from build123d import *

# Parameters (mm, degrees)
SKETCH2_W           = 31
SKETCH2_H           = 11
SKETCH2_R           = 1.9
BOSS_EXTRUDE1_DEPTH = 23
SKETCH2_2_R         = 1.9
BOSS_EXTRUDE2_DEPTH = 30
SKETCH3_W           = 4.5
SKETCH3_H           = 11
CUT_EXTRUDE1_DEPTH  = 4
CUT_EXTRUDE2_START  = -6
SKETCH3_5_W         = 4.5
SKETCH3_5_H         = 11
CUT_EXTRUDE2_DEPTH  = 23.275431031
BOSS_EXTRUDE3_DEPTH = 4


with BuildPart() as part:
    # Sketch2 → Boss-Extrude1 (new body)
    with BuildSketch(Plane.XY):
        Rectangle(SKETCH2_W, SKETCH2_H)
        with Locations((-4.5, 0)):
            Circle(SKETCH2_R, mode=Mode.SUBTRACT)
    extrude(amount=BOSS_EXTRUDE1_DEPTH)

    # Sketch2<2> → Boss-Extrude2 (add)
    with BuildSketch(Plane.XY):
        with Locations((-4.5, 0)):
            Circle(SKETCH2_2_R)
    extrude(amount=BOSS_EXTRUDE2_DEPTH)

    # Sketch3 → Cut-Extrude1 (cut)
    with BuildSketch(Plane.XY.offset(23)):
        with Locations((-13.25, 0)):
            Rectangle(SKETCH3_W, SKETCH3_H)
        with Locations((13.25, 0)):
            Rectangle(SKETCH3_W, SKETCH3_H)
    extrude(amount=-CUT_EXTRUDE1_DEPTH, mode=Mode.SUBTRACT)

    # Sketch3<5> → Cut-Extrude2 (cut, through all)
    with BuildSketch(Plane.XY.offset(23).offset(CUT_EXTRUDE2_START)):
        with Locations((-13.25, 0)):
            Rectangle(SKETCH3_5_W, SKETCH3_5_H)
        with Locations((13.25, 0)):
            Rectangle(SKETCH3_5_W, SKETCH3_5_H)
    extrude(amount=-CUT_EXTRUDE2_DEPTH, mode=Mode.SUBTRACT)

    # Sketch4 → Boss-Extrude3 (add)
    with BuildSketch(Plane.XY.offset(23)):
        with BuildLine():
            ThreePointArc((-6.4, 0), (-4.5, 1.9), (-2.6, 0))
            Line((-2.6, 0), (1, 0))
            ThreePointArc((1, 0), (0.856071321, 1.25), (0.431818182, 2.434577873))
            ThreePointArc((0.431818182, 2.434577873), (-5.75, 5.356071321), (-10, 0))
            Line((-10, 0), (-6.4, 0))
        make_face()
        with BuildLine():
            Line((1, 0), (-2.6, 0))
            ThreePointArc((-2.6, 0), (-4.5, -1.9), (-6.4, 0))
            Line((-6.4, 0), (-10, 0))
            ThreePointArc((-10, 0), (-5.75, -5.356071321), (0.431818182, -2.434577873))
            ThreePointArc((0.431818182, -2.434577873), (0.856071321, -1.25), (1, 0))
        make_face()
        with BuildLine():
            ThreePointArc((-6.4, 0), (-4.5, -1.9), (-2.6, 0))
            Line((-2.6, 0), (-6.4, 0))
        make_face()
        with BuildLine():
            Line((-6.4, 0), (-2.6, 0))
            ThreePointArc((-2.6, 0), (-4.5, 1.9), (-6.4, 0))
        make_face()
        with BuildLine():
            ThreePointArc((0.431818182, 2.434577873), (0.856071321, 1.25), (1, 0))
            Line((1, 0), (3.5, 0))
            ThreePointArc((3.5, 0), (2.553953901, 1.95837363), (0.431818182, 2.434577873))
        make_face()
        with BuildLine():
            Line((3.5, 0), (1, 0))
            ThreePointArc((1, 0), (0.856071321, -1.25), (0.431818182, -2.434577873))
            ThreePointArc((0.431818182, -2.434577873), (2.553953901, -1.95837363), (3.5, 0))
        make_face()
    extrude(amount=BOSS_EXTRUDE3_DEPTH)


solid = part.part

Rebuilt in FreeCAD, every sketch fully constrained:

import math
import FreeCAD as App
import Part
import Sketcher
from FreeCAD import Vector
Q = App.Units.Quantity


def add_polygon(sketch, points):
    """Adds a closed chain of lines whose ends are joined by coincident constraints."""
    first, n = sketch.GeometryCount, len(points)
    for a, b in zip(points, points[1:] + points[:1]):
        sketch.addGeometry(Part.LineSegment(App.Vector(*a, 0), App.Vector(*b, 0)), False)
    for i in range(n):
        sketch.addConstraint(Sketcher.Constraint("Coincident", first + i, 2, first + (i + 1) % n, 1))

doc = App.newDocument("Part")
body = doc.addObject("PartDesign::Body", "Body")

# Sketch on XY plane
sketch1 = doc.addObject("Sketcher::SketchObject", "Sketch")
body.addObject(sketch1)
sketch1.AttachmentSupport = (doc.XY_Plane, [""])
sketch1.MapMode = "FlatFace"
add_polygon(sketch1, [(-15.5, 5.5), (-15.5, -5.5), (15.5, -5.5), (15.5, 5.5)])  # lines 0-3
sketch1.addGeometry(Part.Circle(Vector(-4.5, 0, 0), Vector(0, 0, 1), 1.9), False)  # 4
sketch1.addConstraint([
    Sketcher.Constraint("Vertical", 0),
    Sketcher.Constraint("Horizontal", 1),
    Sketcher.Constraint("Vertical", 2),
    Sketcher.Constraint("Horizontal", 3),
    Sketcher.Constraint("Symmetric", 0, 2, 2, 2, -1, 1),
    Sketcher.Constraint("PointOnObject", 4, 3, -1),
    Sketcher.Constraint("Diameter", 4, Q("3.8 mm")),
    Sketcher.Constraint("DistanceX", 1, 1, 1, 2, Q("31 mm")),
    Sketcher.Constraint("DistanceY", 0, 2, 0, 1, Q("11 mm")),
    Sketcher.Constraint("DistanceX", 0, 2, 4, 3, Q("11 mm")),
])
pad1 = doc.addObject("PartDesign::Pad", "Pad")
body.addObject(pad1)
pad1.Profile = sketch1
pad1.Length = 23

# Sketch on XY plane
sketch2 = doc.addObject("Sketcher::SketchObject", "Sketch001")
body.addObject(sketch2)
sketch2.AttachmentSupport = (doc.XY_Plane, [""])
sketch2.MapMode = "FlatFace"
sketch2.addGeometry(Part.Circle(Vector(-4.5, 0, 0), Vector(0, 0, 1), 1.9), False)
sketch2.addConstraint([
    Sketcher.Constraint("PointOnObject", 0, 3, -1),
    Sketcher.Constraint("Diameter", 0, Q("3.8 mm")),
    Sketcher.Constraint("DistanceX", 0, 3, -1, 1, Q("4.5 mm")),
])
pad2 = doc.addObject("PartDesign::Pad", "Pad001")
body.addObject(pad2)
pad2.Profile = sketch2
pad2.Length = 30

# Sketch on XY plane
sketch3 = doc.addObject("Sketcher::SketchObject", "Sketch002")
body.addObject(sketch3)
sketch3.AttachmentSupport = (doc.XY_Plane, [""])
sketch3.MapMode = "FlatFace"
sketch3.AttachmentOffset = App.Placement(Vector(0, 0, 23), App.Rotation())
add_polygon(sketch3, [(-15.5, 5.5), (-15.5, -5.5), (-11, -5.5), (-11, 5.5)])  # lines 0-3
add_polygon(sketch3, [(11, 5.5), (11, -5.5), (15.5, -5.5), (15.5, 5.5)])  # lines 4-7
sketch3.addConstraint([
    Sketcher.Constraint("Vertical", 0),
    Sketcher.Constraint("Horizontal", 1),
    Sketcher.Constraint("Vertical", 2),
    Sketcher.Constraint("Horizontal", 3),
    Sketcher.Constraint("Vertical", 4),
    Sketcher.Constraint("Horizontal", 5),
    Sketcher.Constraint("Vertical", 6),
    Sketcher.Constraint("Horizontal", 7),
    Sketcher.Constraint("Symmetric", 2, 2, 4, 2, -1, 1),
    Sketcher.Constraint("Symmetric", 0, 2, 6, 2, -1, 1),
    Sketcher.Constraint("Horizontal", 1, 2, 4, 2),
    Sketcher.Constraint("DistanceY", 0, 2, 0, 1, Q("11 mm")),
    Sketcher.Constraint("DistanceX", 1, 1, 1, 2, Q("4.5 mm")),
    Sketcher.Constraint("DistanceX", 1, 2, -1, 1, Q("11 mm")),
])
pocket1 = doc.addObject("PartDesign::Pocket", "Pocket")
body.addObject(pocket1)
pocket1.Profile = sketch3
pocket1.Length = 4

# Sketch on XY plane
sketch4 = doc.addObject("Sketcher::SketchObject", "Sketch003")
body.addObject(sketch4)
sketch4.AttachmentSupport = (doc.XY_Plane, [""])
sketch4.MapMode = "FlatFace"
sketch4.AttachmentOffset = App.Placement(Vector(0, 0, 17), App.Rotation())
add_polygon(sketch4, [(-15.5, 5.5), (-15.5, -5.5), (-11, -5.5), (-11, 5.5)])  # lines 0-3
add_polygon(sketch4, [(11, 5.5), (11, -5.5), (15.5, -5.5), (15.5, 5.5)])  # lines 4-7
sketch4.addConstraint([
    Sketcher.Constraint("Vertical", 0),
    Sketcher.Constraint("Horizontal", 1),
    Sketcher.Constraint("Vertical", 2),
    Sketcher.Constraint("Horizontal", 3),
    Sketcher.Constraint("Vertical", 4),
    Sketcher.Constraint("Horizontal", 5),
    Sketcher.Constraint("Vertical", 6),
    Sketcher.Constraint("Horizontal", 7),
    Sketcher.Constraint("Symmetric", 2, 2, 4, 2, -1, 1),
    Sketcher.Constraint("Symmetric", 0, 2, 6, 2, -1, 1),
    Sketcher.Constraint("Horizontal", 1, 2, 4, 2),
    Sketcher.Constraint("DistanceY", 0, 2, 0, 1, Q("11 mm")),
    Sketcher.Constraint("DistanceX", 1, 1, 1, 2, Q("4.5 mm")),
    Sketcher.Constraint("DistanceX", 1, 2, -1, 1, Q("11 mm")),
])
pocket2 = doc.addObject("PartDesign::Pocket", "Pocket001")
body.addObject(pocket2)
pocket2.Profile = sketch4
pocket2.Type = "ThroughAll"

# Sketch on XY plane
sketch5 = doc.addObject("Sketcher::SketchObject", "Sketch004")
body.addObject(sketch5)
sketch5.AttachmentSupport = (doc.XY_Plane, [""])
sketch5.MapMode = "FlatFace"
sketch5.AttachmentOffset = App.Placement(Vector(0, 0, 23), App.Rotation())
sketch5.addGeometry([
    Part.ArcOfCircle(Part.Circle(Vector(1, 0, 0), Vector(0, 0, 1), 2.5), math.radians(0), math.radians(103)),
    Part.ArcOfCircle(Part.Circle(Vector(-4.5, 0, 0), Vector(0, 0, 1), 5.5), math.radians(26), math.radians(180)),
    Part.ArcOfCircle(Part.Circle(Vector(-4.5, 0, 0), Vector(0, 0, 1), 5.5), math.radians(180), math.radians(334)),
    Part.ArcOfCircle(Part.Circle(Vector(1, 0, 0), Vector(0, 0, 1), 2.5), math.radians(-103), math.radians(0)),
], False)
sketch5.addConstraint([
    Sketcher.Constraint("Coincident", 0, 2, 1, 1),
    Sketcher.Constraint("Tangent", 1, 2, 2, 1),
    Sketcher.Constraint("Coincident", 2, 2, 3, 1),
    Sketcher.Constraint("Tangent", 3, 2, 0, 1),
    Sketcher.Constraint("Equal", 1, 2),
    Sketcher.Constraint("Equal", 0, 3),
    Sketcher.Constraint("Symmetric", 0, 2, 2, 2, -1),
    Sketcher.Constraint("PointOnObject", 1, 2, -1),
    Sketcher.Constraint("PointOnObject", 3, 2, -1),
    Sketcher.Constraint("Radius", 0, Q("2.5 mm")),
    Sketcher.Constraint("Radius", 1, Q("5.5 mm")),
    Sketcher.Constraint("DistanceX", -1, 1, 0, 3, Q("1 mm")),
    Sketcher.Constraint("DistanceX", 1, 2, -1, 1, Q("10 mm")),
])
pad3 = doc.addObject("PartDesign::Pad", "Pad002")
body.addObject(pad3)
pad3.Profile = sketch5
pad3.Length = 4

doc.recompute()
